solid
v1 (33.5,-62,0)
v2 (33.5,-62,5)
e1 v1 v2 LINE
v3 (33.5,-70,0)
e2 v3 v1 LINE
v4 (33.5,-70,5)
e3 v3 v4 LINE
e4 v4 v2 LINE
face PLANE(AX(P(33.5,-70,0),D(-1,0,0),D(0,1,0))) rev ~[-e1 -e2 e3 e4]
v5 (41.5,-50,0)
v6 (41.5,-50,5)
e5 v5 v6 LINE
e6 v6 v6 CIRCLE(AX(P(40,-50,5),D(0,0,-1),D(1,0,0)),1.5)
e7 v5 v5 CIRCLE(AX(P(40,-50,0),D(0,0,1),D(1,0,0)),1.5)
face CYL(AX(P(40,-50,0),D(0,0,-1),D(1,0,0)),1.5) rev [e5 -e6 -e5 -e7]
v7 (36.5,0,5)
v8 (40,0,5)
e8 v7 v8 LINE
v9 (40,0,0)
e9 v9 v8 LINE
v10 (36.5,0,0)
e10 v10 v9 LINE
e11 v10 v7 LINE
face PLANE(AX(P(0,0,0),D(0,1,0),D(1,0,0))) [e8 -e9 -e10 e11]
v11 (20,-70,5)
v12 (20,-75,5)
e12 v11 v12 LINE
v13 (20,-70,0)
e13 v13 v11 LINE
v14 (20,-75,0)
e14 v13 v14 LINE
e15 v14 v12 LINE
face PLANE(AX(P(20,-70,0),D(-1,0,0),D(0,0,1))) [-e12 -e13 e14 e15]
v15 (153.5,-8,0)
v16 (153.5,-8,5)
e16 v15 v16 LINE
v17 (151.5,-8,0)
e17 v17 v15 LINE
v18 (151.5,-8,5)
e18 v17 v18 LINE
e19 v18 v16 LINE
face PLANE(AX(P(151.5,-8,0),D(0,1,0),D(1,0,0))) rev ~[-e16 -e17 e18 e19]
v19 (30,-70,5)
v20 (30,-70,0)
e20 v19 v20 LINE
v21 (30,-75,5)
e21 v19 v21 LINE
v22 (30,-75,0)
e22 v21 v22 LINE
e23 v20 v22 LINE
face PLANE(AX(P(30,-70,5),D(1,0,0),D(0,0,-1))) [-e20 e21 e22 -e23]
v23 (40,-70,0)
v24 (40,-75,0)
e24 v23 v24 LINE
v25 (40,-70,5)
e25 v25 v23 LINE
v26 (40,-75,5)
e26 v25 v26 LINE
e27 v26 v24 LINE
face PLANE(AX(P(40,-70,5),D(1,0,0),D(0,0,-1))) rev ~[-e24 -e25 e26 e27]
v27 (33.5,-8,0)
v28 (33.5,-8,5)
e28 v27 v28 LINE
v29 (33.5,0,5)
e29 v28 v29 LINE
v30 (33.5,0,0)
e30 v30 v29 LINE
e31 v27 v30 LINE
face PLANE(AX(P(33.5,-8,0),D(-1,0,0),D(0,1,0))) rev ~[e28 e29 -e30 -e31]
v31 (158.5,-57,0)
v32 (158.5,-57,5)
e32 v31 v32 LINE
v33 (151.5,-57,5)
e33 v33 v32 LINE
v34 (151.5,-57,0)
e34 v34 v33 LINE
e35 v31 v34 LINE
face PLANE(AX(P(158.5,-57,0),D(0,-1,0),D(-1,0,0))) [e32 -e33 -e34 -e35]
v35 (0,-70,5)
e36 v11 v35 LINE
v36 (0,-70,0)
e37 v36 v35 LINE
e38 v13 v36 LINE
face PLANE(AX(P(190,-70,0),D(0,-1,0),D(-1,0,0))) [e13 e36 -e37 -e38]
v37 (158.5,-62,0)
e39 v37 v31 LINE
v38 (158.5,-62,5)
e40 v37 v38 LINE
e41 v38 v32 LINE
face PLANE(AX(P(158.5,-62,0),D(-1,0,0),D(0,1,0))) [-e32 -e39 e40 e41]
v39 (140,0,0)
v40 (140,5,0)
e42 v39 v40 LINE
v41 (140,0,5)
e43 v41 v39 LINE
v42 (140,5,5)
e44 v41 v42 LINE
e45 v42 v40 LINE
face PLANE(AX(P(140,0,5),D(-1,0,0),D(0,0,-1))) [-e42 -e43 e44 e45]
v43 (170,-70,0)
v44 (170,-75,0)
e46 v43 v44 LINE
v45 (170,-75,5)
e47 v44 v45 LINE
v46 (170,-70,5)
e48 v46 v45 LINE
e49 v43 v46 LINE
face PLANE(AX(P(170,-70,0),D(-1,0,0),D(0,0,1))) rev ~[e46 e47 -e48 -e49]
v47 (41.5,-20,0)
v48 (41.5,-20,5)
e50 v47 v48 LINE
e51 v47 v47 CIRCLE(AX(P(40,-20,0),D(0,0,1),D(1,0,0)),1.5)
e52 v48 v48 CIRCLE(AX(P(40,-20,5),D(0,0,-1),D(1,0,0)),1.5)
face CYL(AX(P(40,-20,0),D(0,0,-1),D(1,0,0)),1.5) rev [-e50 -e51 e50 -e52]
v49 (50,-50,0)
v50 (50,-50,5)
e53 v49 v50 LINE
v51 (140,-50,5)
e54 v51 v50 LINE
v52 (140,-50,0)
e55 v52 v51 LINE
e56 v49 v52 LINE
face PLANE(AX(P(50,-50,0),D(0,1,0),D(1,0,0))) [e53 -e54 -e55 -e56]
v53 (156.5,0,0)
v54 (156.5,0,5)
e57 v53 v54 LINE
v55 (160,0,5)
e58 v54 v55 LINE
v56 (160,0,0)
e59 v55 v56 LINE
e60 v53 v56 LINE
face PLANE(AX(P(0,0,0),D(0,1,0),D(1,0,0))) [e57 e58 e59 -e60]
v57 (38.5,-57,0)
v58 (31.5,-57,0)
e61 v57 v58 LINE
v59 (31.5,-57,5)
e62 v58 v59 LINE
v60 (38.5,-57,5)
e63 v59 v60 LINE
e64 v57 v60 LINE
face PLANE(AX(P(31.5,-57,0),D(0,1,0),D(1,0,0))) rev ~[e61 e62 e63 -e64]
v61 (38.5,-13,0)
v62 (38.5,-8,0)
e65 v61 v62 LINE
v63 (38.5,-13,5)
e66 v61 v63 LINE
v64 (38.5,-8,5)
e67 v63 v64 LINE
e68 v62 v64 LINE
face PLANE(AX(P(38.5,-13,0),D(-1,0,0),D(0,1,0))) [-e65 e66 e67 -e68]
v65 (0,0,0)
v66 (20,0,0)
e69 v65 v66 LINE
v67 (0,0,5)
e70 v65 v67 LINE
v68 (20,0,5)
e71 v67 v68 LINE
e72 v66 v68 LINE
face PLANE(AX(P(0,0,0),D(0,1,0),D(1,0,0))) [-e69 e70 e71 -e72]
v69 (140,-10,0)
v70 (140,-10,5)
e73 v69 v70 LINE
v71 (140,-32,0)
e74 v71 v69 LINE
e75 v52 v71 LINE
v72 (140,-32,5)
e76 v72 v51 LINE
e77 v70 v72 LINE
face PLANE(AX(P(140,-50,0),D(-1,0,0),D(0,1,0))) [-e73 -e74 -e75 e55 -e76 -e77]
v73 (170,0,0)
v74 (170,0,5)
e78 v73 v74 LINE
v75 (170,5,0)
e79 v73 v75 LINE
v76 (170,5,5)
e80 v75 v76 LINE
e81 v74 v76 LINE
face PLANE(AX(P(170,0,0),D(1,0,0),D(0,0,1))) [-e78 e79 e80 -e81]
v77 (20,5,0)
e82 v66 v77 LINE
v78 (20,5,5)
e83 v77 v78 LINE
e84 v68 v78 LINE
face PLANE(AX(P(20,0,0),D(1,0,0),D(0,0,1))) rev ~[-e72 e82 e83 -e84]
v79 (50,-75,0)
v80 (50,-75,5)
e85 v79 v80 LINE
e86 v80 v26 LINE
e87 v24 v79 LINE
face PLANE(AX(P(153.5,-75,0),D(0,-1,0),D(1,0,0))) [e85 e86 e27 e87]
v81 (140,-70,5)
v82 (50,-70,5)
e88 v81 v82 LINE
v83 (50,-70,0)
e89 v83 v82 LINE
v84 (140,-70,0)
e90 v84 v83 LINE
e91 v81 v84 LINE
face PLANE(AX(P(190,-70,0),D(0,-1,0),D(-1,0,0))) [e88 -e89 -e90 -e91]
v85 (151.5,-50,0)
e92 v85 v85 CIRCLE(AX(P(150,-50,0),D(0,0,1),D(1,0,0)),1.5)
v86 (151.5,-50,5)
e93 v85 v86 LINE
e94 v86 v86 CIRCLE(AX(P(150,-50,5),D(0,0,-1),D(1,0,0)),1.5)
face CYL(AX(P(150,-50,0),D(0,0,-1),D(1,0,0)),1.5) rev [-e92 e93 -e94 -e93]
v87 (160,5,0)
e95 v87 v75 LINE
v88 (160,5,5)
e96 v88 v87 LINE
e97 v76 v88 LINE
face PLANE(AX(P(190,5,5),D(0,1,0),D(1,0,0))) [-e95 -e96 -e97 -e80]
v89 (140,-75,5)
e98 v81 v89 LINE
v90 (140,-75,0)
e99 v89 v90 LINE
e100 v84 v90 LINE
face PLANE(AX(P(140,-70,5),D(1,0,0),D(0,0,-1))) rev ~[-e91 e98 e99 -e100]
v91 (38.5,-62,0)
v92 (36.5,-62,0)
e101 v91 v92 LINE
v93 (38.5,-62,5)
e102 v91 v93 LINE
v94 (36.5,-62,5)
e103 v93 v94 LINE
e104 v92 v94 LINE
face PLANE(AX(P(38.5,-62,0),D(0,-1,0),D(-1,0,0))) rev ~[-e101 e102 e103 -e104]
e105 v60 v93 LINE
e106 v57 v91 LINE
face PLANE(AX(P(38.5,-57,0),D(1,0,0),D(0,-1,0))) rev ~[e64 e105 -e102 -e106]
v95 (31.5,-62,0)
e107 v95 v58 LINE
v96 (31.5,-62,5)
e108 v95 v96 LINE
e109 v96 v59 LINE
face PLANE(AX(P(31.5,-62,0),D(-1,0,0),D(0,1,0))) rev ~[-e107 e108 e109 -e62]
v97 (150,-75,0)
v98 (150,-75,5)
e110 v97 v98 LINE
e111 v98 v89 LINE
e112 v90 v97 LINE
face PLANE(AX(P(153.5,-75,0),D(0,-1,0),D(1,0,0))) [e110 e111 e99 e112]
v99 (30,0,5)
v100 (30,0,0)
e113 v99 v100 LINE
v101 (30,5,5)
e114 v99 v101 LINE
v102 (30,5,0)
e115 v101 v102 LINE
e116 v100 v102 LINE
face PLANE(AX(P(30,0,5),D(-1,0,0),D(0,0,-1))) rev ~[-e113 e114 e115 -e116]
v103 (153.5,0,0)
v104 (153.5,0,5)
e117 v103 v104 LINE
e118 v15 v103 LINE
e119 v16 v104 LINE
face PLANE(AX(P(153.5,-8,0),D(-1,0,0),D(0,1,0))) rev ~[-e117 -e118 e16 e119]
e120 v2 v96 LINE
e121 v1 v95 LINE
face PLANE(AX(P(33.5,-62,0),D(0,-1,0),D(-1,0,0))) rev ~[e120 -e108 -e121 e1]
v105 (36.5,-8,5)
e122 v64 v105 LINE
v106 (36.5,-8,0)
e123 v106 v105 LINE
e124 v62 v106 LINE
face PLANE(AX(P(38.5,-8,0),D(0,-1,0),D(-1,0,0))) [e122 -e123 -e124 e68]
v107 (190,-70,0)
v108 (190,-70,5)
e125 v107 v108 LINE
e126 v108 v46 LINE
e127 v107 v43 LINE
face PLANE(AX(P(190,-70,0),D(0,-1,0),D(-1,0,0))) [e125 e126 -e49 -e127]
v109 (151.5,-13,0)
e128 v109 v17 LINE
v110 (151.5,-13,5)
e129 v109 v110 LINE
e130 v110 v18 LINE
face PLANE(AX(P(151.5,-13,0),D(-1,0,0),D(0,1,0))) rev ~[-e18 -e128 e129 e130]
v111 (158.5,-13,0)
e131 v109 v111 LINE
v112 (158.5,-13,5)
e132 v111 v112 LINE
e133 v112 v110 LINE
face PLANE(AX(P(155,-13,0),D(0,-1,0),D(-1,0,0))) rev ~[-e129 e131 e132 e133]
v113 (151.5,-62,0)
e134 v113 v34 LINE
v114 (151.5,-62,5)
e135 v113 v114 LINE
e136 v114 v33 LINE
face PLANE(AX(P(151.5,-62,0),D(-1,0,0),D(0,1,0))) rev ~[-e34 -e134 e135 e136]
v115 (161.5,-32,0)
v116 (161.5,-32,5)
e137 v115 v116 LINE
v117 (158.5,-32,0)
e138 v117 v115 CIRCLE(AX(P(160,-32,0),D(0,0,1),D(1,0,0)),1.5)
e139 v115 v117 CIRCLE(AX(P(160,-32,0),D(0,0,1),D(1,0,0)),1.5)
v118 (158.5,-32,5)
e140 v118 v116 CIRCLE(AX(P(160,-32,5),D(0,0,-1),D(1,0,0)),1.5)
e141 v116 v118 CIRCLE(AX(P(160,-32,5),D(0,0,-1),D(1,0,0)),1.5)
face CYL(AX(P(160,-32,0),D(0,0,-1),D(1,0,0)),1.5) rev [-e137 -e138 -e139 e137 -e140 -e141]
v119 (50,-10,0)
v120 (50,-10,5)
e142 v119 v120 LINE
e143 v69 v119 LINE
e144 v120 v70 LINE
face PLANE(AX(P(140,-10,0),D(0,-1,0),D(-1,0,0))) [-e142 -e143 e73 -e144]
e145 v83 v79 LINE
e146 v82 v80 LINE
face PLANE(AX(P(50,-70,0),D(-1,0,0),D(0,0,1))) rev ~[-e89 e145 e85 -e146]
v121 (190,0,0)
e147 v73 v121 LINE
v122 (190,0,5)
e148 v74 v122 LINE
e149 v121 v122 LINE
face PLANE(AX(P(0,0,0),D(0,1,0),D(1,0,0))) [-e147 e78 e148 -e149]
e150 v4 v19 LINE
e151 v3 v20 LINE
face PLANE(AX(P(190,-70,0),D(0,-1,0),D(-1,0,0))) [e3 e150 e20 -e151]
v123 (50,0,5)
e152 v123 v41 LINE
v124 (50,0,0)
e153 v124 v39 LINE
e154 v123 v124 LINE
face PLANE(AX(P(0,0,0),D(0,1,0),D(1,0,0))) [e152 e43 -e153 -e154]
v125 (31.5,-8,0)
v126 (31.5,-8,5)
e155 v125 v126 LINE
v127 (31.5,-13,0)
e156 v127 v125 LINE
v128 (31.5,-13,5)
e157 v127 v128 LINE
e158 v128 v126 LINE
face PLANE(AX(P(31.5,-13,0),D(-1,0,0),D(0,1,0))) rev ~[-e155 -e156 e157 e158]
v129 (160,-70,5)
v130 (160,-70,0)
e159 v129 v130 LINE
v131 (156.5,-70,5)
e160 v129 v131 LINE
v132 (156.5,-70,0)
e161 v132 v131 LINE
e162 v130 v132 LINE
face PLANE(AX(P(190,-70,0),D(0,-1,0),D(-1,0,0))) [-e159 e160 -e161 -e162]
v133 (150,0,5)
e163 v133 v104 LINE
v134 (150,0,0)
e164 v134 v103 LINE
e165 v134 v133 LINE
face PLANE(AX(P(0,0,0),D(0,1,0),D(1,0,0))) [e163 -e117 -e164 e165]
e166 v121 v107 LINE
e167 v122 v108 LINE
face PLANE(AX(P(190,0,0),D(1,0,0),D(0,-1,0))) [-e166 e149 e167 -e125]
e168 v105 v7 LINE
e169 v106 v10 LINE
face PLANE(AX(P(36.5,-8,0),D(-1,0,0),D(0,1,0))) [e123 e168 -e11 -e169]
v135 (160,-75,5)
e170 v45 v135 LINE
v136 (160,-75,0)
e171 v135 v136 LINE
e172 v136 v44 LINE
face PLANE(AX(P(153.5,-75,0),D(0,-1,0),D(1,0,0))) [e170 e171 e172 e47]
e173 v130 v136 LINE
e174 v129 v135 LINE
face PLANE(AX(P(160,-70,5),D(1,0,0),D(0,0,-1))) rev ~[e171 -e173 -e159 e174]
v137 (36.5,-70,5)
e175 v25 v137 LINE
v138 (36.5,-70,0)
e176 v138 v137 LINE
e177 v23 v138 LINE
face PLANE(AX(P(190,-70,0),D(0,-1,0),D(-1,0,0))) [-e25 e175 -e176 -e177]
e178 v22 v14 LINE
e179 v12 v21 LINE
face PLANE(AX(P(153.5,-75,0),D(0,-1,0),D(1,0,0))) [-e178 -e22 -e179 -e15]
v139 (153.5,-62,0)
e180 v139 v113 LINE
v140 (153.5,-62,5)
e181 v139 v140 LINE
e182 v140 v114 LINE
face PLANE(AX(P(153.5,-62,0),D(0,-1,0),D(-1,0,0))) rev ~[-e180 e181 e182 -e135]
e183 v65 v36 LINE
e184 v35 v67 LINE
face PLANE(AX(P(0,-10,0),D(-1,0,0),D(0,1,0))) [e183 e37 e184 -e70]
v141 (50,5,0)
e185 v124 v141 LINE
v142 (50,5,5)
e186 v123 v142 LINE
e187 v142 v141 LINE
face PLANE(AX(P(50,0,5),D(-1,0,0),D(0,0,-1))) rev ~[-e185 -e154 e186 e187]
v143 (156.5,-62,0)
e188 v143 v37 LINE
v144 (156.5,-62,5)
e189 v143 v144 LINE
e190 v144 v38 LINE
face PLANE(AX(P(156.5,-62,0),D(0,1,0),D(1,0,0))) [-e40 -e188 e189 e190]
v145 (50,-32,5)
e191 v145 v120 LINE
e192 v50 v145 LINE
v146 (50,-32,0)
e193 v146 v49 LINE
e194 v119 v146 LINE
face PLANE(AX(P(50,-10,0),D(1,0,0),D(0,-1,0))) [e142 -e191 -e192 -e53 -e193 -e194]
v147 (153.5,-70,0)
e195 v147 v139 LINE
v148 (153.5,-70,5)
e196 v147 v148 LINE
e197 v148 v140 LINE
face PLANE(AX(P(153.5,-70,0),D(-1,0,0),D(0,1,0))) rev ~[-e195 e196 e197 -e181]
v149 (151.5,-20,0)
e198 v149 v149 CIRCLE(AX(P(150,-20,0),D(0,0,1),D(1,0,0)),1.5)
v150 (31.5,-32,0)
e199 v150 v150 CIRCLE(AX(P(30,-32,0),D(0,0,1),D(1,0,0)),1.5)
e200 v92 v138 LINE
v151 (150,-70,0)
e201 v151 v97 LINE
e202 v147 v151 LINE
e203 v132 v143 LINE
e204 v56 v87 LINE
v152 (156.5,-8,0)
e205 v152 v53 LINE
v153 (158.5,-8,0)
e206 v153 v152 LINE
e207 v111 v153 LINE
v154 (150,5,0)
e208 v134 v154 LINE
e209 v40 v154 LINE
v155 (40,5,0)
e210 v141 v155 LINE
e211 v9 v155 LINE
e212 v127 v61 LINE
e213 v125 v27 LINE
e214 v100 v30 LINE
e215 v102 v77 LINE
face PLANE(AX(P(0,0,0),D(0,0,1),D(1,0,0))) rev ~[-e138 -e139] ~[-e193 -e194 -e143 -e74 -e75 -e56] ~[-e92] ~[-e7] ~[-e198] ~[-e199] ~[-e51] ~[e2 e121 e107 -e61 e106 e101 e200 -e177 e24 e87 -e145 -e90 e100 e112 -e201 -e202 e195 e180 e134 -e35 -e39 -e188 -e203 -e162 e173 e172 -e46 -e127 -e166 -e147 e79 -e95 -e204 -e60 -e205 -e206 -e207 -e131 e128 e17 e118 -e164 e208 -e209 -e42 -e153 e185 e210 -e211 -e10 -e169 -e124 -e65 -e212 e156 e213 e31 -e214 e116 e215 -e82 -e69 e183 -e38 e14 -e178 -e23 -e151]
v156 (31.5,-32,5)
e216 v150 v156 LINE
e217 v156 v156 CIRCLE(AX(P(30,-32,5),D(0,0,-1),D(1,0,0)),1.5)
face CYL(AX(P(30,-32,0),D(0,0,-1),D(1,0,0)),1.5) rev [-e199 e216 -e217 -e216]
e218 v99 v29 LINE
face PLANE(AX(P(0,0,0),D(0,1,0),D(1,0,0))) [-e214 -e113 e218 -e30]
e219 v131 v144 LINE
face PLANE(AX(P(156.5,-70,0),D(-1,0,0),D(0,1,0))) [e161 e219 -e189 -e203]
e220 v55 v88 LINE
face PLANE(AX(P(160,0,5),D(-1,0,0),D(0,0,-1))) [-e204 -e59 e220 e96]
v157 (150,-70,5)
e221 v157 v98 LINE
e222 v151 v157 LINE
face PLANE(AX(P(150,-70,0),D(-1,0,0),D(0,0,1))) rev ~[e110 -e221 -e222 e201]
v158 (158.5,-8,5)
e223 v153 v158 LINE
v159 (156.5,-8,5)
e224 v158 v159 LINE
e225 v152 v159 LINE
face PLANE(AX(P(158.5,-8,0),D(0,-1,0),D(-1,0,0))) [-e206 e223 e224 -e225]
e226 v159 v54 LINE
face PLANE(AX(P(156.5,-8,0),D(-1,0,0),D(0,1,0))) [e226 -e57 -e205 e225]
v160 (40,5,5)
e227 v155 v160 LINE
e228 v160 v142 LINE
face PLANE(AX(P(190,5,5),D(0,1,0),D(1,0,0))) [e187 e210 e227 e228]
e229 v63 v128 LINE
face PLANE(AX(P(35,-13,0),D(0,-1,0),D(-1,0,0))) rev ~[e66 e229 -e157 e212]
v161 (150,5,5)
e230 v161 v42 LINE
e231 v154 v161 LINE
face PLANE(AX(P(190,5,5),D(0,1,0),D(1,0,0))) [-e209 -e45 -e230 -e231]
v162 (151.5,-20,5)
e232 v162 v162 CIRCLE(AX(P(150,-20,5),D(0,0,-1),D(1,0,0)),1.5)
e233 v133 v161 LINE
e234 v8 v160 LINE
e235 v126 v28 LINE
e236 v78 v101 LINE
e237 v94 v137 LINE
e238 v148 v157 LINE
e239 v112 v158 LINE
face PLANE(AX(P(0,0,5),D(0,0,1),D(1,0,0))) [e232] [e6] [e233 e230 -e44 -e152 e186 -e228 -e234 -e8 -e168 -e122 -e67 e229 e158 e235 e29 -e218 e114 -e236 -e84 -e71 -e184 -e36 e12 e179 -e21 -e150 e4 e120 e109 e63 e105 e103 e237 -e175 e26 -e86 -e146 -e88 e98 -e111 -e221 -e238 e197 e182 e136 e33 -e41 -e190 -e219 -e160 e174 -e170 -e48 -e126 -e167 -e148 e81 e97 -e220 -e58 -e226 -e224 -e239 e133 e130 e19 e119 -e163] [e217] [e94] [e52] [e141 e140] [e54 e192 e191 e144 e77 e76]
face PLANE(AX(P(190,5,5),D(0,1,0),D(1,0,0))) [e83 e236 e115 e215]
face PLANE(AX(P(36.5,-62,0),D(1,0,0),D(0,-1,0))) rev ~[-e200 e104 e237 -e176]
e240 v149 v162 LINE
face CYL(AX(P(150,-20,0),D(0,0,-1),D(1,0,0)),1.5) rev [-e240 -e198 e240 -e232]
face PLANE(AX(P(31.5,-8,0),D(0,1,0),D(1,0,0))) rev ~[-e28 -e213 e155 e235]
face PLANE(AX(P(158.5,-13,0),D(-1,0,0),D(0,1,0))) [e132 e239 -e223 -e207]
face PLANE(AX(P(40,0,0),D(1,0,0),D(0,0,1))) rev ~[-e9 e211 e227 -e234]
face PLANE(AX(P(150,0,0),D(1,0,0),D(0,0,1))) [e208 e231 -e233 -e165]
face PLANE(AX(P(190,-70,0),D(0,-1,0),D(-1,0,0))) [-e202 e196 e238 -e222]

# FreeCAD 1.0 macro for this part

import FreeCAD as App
import Part
import Sketcher
Q = App.Units.Quantity


def add_polygon(sketch, points):
    """Adds a closed chain of lines whose ends are joined by coincident constraints."""
    first, n = sketch.GeometryCount, len(points)
    for a, b in zip(points, points[1:] + points[:1]):
        sketch.addGeometry(Part.LineSegment(App.Vector(*a, 0), App.Vector(*b, 0)), False)
    for i in range(n):
        sketch.addConstraint(Sketcher.Constraint("Coincident", first + i, 2, first + (i + 1) % n, 1))

doc = App.newDocument("Part")
params = doc.addObject("Spreadsheet::Sheet", "Params")
for row, (alias, value) in enumerate([
    ("sketch1_width", "190 mm"),
    ("sketch1_height", "70 mm"),
    ("pad1_length", "5 mm"),
    ("sketch2_width", "2 mm"),
    ("sketch2_height", "13 mm"),
    ("sketch2_height2", "8 mm"),
    ("sketch2_width2", "1.5 mm"),
    ("pocket1_length", "5 mm"),
    ("sketch3_width", "2 mm"),
    ("sketch3_height", "8 mm"),
    ("sketch3_height2", "13 mm"),
    ("sketch3_width2", "1.5 mm"),
    ("pocket2_length", "5 mm"),
    ("sketch4_width", "2 mm"),
    ("sketch4_height", "8 mm"),
    ("sketch4_height2", "13 mm"),
    ("sketch4_width2", "1.5 mm"),
    ("pocket3_length", "5 mm"),
    ("sketch5_width", "2 mm"),
    ("sketch5_height", "13 mm"),
    ("sketch5_height2", "8 mm"),
    ("sketch5_width2", "1.5 mm"),
    ("pocket4_length", "5 mm"),
    ("sketch6_width", "2 mm"),
    ("sketch6_height", "13 mm"),
    ("sketch6_height2", "5 mm"),
    ("sketch6_width2", "3.5 mm"),
    ("pocket5_length", "5 mm"),
    ("sketch7_width", "2 mm"),
    ("sketch7_height", "13 mm"),
    ("sketch7_height2", "8 mm"),
    ("sketch7_width2", "3.5 mm"),
    ("pocket6_length", "5 mm"),
    ("sketch8_width", "2 mm"),
    ("sketch8_height", "5 mm"),
    ("sketch8_height2", "8 mm"),
    ("pocket7_length", "5 mm"),
    ("sketch9_width", "10 mm"),
    ("sketch9_height", "5 mm"),
    ("pad2_length", "5 mm"),
    ("sketch10_width", "10 mm"),
    ("sketch10_height", "5 mm"),
    ("pad3_length", "5 mm"),
    ("sketch11_width", "90 mm"),
    ("sketch11_height", "40 mm"),
    ("pocket8_length", "10 mm"),
    ("sketch12_diameter", "3 mm"),
    ("pocket9_length", "10 mm"),
], start=1):
    params.set(f"A{row}", alias)
    params.set(f"B{row}", "=" + value)
    params.setAlias(f"B{row}", alias)

body = doc.addObject("PartDesign::Body", "Body")

# Sketch on XY plane
sketch1 = body.newObject("Sketcher::SketchObject", "Sketch")
sketch1.AttachmentSupport = (doc.getObject("XY_Plane"), [""])
sketch1.MapMode = "FlatFace"
add_polygon(sketch1, [(190, 0), (0, 0), (0, -70), (190, -70)])  # lines 0-3
sketch1.addConstraint(Sketcher.Constraint("Horizontal", 0))
sketch1.addConstraint(Sketcher.Constraint("Vertical", 1))
sketch1.addConstraint(Sketcher.Constraint("Horizontal", 2))
sketch1.addConstraint(Sketcher.Constraint("Vertical", 3))
sketch1.addConstraint(Sketcher.Constraint("Coincident", 0, 2, -1, 1))
sketch1.addConstraint(Sketcher.Constraint("DistanceX", 0, 2, 0, 1, Q("190 mm")))
sketch1.addConstraint(Sketcher.Constraint("DistanceY", 1, 2, 1, 1, Q("70 mm")))
sketch1.setExpression("Constraints[9]", "Params.sketch1_width")
sketch1.setExpression("Constraints[10]", "Params.sketch1_height")
pad1 = body.newObject("PartDesign::Pad", "Pad")
pad1.Profile = sketch1
pad1.setExpression("Length", "Params.pad1_length")

# Sketch on XY plane
sketch2 = body.newObject("Sketcher::SketchObject", "Sketch001")
sketch2.AttachmentSupport = (doc.getObject("XY_Plane"), [""])
sketch2.MapMode = "FlatFace"
add_polygon(sketch2, [(155, -13), (155, 0), (156.5, 0), (156.5, -8), (158.5, -8), (158.5, -13)])  # lines 0-5
sketch2.addConstraint(Sketcher.Constraint("Vertical", 0))
sketch2.addConstraint(Sketcher.Constraint("Horizontal", 1))
sketch2.addConstraint(Sketcher.Constraint("Vertical", 2))
sketch2.addConstraint(Sketcher.Constraint("Horizontal", 3))
sketch2.addConstraint(Sketcher.Constraint("Vertical", 4))
sketch2.addConstraint(Sketcher.Constraint("Horizontal", 5))
sketch2.addConstraint(Sketcher.Constraint("PointOnObject", 0, 2, -1))
sketch2.addConstraint(Sketcher.Constraint("DistanceX", 3, 1, 3, 2, Q("2 mm")))
sketch2.addConstraint(Sketcher.Constraint("DistanceY", 0, 1, 0, 2, Q("13 mm")))
sketch2.addConstraint(Sketcher.Constraint("DistanceY", 2, 2, 2, 1, Q("8 mm")))
sketch2.addConstraint(Sketcher.Constraint("DistanceX", 1, 1, 1, 2, Q("1.5 mm")))
sketch2.addConstraint(Sketcher.Constraint("DistanceX", -1, 1, 0, 2, Q("155 mm")))
sketch2.setExpression("Constraints[13]", "Params.sketch2_width")
sketch2.setExpression("Constraints[14]", "Params.sketch2_height")
sketch2.setExpression("Constraints[15]", "Params.sketch2_height2")
sketch2.setExpression("Constraints[16]", "Params.sketch2_width2")
pocket1 = body.newObject("PartDesign::Pocket", "Pocket")
pocket1.Profile = sketch2
pocket1.setExpression("Length", "Params.pocket1_length")
pocket1.Reversed = True

# Sketch on XY plane
sketch3 = body.newObject("Sketcher::SketchObject", "Sketch002")
sketch3.AttachmentSupport = (doc.getObject("XY_Plane"), [""])
sketch3.MapMode = "FlatFace"
add_polygon(sketch3, [(153.5, -8), (153.5, 0), (155, 0), (155, -13), (151.5, -13), (151.5, -8)])  # lines 0-5
sketch3.addConstraint(Sketcher.Constraint("Vertical", 0))
sketch3.addConstraint(Sketcher.Constraint("Horizontal", 1))
sketch3.addConstraint(Sketcher.Constraint("Vertical", 2))
sketch3.addConstraint(Sketcher.Constraint("Horizontal", 3))
sketch3.addConstraint(Sketcher.Constraint("Vertical", 4))
sketch3.addConstraint(Sketcher.Constraint("Horizontal", 5))
sketch3.addConstraint(Sketcher.Constraint("PointOnObject", 0, 2, -1))
sketch3.addConstraint(Sketcher.Constraint("DistanceX", 5, 1, 5, 2, Q("2 mm")))
sketch3.addConstraint(Sketcher.Constraint("DistanceY", 0, 1, 0, 2, Q("8 mm")))
sketch3.addConstraint(Sketcher.Constraint("DistanceY", 2, 2, 2, 1, Q("13 mm")))
sketch3.addConstraint(Sketcher.Constraint("DistanceX", 1, 1, 1, 2, Q("1.5 mm")))
sketch3.addConstraint(Sketcher.Constraint("DistanceX", -1, 1, 1, 2, Q("155 mm")))
sketch3.setExpression("Constraints[13]", "Params.sketch3_width")
sketch3.setExpression("Constraints[14]", "Params.sketch3_height")
sketch3.setExpression("Constraints[15]", "Params.sketch3_height2")
sketch3.setExpression("Constraints[16]", "Params.sketch3_width2")
pocket2 = body.newObject("PartDesign::Pocket", "Pocket001")
pocket2.Profile = sketch3
pocket2.setExpression("Length", "Params.pocket2_length")
pocket2.Reversed = True

# Sketch on XY plane
sketch4 = body.newObject("Sketcher::SketchObject", "Sketch003")
sketch4.AttachmentSupport = (doc.getObject("XY_Plane"), [""])
sketch4.MapMode = "FlatFace"
add_polygon(sketch4, [(33.5, -8), (33.5, 0), (35, 0), (35, -13), (31.5, -13), (31.5, -8)])  # lines 0-5
sketch4.addConstraint(Sketcher.Constraint("Vertical", 0))
sketch4.addConstraint(Sketcher.Constraint("Horizontal", 1))
sketch4.addConstraint(Sketcher.Constraint("Vertical", 2))
sketch4.addConstraint(Sketcher.Constraint("Horizontal", 3))
sketch4.addConstraint(Sketcher.Constraint("Vertical", 4))
sketch4.addConstraint(Sketcher.Constraint("Horizontal", 5))
sketch4.addConstraint(Sketcher.Constraint("PointOnObject", 0, 2, -1))
sketch4.addConstraint(Sketcher.Constraint("DistanceX", 5, 1, 5, 2, Q("2 mm")))
sketch4.addConstraint(Sketcher.Constraint("DistanceY", 0, 1, 0, 2, Q("8 mm")))
sketch4.addConstraint(Sketcher.Constraint("DistanceY", 2, 2, 2, 1, Q("13 mm")))
sketch4.addConstraint(Sketcher.Constraint("DistanceX", 1, 1, 1, 2, Q("1.5 mm")))
sketch4.addConstraint(Sketcher.Constraint("DistanceX", -1, 1, 1, 2, Q("35 mm")))
sketch4.setExpression("Constraints[13]", "Params.sketch4_width")
sketch4.setExpression("Constraints[14]", "Params.sketch4_height")
sketch4.setExpression("Constraints[15]", "Params.sketch4_height2")
sketch4.setExpression("Constraints[16]", "Params.sketch4_width2")
pocket3 = body.newObject("PartDesign::Pocket", "Pocket002")
pocket3.Profile = sketch4
pocket3.setExpression("Length", "Params.pocket3_length")
pocket3.Reversed = True

# Sketch on XY plane
sketch5 = body.newObject("Sketcher::SketchObject", "Sketch004")
sketch5.AttachmentSupport = (doc.getObject("XY_Plane"), [""])
sketch5.MapMode = "FlatFace"
add_polygon(sketch5, [(35, -13), (35, 0), (36.5, 0), (36.5, -8), (38.5, -8), (38.5, -13)])  # lines 0-5
sketch5.addConstraint(Sketcher.Constraint("Vertical", 0))
sketch5.addConstraint(Sketcher.Constraint("Horizontal", 1))
sketch5.addConstraint(Sketcher.Constraint("Vertical", 2))
sketch5.addConstraint(Sketcher.Constraint("Horizontal", 3))
sketch5.addConstraint(Sketcher.Constraint("Vertical", 4))
sketch5.addConstraint(Sketcher.Constraint("Horizontal", 5))
sketch5.addConstraint(Sketcher.Constraint("PointOnObject", 0, 2, -1))
sketch5.addConstraint(Sketcher.Constraint("DistanceX", 3, 1, 3, 2, Q("2 mm")))
sketch5.addConstraint(Sketcher.Constraint("DistanceY", 0, 1, 0, 2, Q("13 mm")))
sketch5.addConstraint(Sketcher.Constraint("DistanceY", 2, 2, 2, 1, Q("8 mm")))
sketch5.addConstraint(Sketcher.Constraint("DistanceX", 1, 1, 1, 2, Q("1.5 mm")))
sketch5.addConstraint(Sketcher.Constraint("DistanceX", -1, 1, 0, 2, Q("35 mm")))
sketch5.setExpression("Constraints[13]", "Params.sketch5_width")
sketch5.setExpression("Constraints[14]", "Params.sketch5_height")
sketch5.setExpression("Constraints[15]", "Params.sketch5_height2")
sketch5.setExpression("Constraints[16]", "Params.sketch5_width2")
pocket4 = body.newObject("PartDesign::Pocket", "Pocket003")
pocket4.Profile = sketch5
pocket4.setExpression("Length", "Params.pocket4_length")
pocket4.Reversed = True

# Sketch on XY plane
sketch6 = body.newObject("Sketcher::SketchObject", "Sketch005")
sketch6.AttachmentSupport = (doc.getObject("XY_Plane"), [""])
sketch6.MapMode = "FlatFace"
add_polygon(sketch6, [(155, -70), (155, -57), (158.5, -57), (158.5, -62), (156.5, -62), (156.5, -70)])  # lines 0-5
sketch6.addConstraint(Sketcher.Constraint("Vertical", 0))
sketch6.addConstraint(Sketcher.Constraint("Horizontal", 1))
sketch6.addConstraint(Sketcher.Constraint("Vertical", 2))
sketch6.addConstraint(Sketcher.Constraint("Horizontal", 3))
sketch6.addConstraint(Sketcher.Constraint("Vertical", 4))
sketch6.addConstraint(Sketcher.Constraint("Horizontal", 5))
sketch6.addConstraint(Sketcher.Constraint("DistanceX", 3, 2, 3, 1, Q("2 mm")))
sketch6.addConstraint(Sketcher.Constraint("DistanceY", 0, 1, 0, 2, Q("13 mm")))
sketch6.addConstraint(Sketcher.Constraint("DistanceY", 2, 2, 2, 1, Q("5 mm")))
sketch6.addConstraint(Sketcher.Constraint("DistanceX", 1, 1, 1, 2, Q("3.5 mm")))
sketch6.addConstraint(Sketcher.Constraint("DistanceX", -1, 1, 0, 2, Q("155 mm")))
sketch6.addConstraint(Sketcher.Constraint("DistanceY", 0, 2, -1, 1, Q("57 mm")))
sketch6.setExpression("Constraints[12]", "Params.sketch6_width")
sketch6.setExpression("Constraints[13]", "Params.sketch6_height")
sketch6.setExpression("Constraints[14]", "Params.sketch6_height2")
sketch6.setExpression("Constraints[15]", "Params.sketch6_width2")
pocket5 = body.newObject("PartDesign::Pocket", "Pocket004")
pocket5.Profile = sketch6
pocket5.setExpression("Length", "Params.pocket5_length")
pocket5.Reversed = True

# Sketch on XY plane
sketch7 = body.newObject("Sketcher::SketchObject", "Sketch006")
sketch7.AttachmentSupport = (doc.getObject("XY_Plane"), [""])
sketch7.MapMode = "FlatFace"
add_polygon(sketch7, [(151.5, -57), (155, -57), (155, -70), (153.5, -70), (153.5, -62), (151.5, -62)])  # lines 0-5
sketch7.addConstraint(Sketcher.Constraint("Horizontal", 0))
sketch7.addConstraint(Sketcher.Constraint("Vertical", 1))
sketch7.addConstraint(Sketcher.Constraint("Horizontal", 2))
sketch7.addConstraint(Sketcher.Constraint("Vertical", 3))
sketch7.addConstraint(Sketcher.Constraint("Horizontal", 4))
sketch7.addConstraint(Sketcher.Constraint("Vertical", 5))
sketch7.addConstraint(Sketcher.Constraint("DistanceX", 4, 2, 4, 1, Q("2 mm")))
sketch7.addConstraint(Sketcher.Constraint("DistanceY", 1, 2, 1, 1, Q("13 mm")))
sketch7.addConstraint(Sketcher.Constraint("DistanceY", 3, 1, 3, 2, Q("8 mm")))
sketch7.addConstraint(Sketcher.Constraint("DistanceX", 0, 1, 0, 2, Q("3.5 mm")))
sketch7.addConstraint(Sketcher.Constraint("DistanceX", -1, 1, 0, 2, Q("155 mm")))
sketch7.addConstraint(Sketcher.Constraint("DistanceY", 0, 2, -1, 1, Q("57 mm")))
sketch7.setExpression("Constraints[12]", "Params.sketch7_width")
sketch7.setExpression("Constraints[13]", "Params.sketch7_height")
sketch7.setExpression("Constraints[14]", "Params.sketch7_height2")
sketch7.setExpression("Constraints[15]", "Params.sketch7_width2")
pocket6 = body.newObject("PartDesign::Pocket", "Pocket005")
pocket6.Profile = sketch7
pocket6.setExpression("Length", "Params.pocket6_length")
pocket6.Reversed = True

# Sketch on XY plane
sketch8 = body.newObject("Sketcher::SketchObject", "Sketch007")
sketch8.AttachmentSupport = (doc.getObject("XY_Plane"), [""])
sketch8.MapMode = "FlatFace"
add_polygon(sketch8, [(31.5, -57), (38.5, -57), (38.5, -62), (36.5, -62), (36.5, -70), (33.5, -70), (33.5, -62), (31.5, -62)])  # lines 0-7
sketch8.addConstraint(Sketcher.Constraint("Horizontal", 0))
sketch8.addConstraint(Sketcher.Constraint("Vertical", 1))
sketch8.addConstraint(Sketcher.Constraint("Horizontal", 2))
sketch8.addConstraint(Sketcher.Constraint("Vertical", 3))
sketch8.addConstraint(Sketcher.Constraint("Horizontal", 4))
sketch8.addConstraint(Sketcher.Constraint("Vertical", 5))
sketch8.addConstraint(Sketcher.Constraint("Horizontal", 6))
sketch8.addConstraint(Sketcher.Constraint("Vertical", 7))
sketch8.addConstraint(Sketcher.Constraint("Horizontal", 2, 2, 5, 2))
sketch8.addConstraint(Sketcher.Constraint("Equal", 2, 6))
sketch8.addConstraint(Sketcher.Constraint("DistanceX", 2, 2, 2, 1, Q("2 mm")))
sketch8.addConstraint(Sketcher.Constraint("DistanceY", 1, 2, 1, 1, Q("5 mm")))
sketch8.addConstraint(Sketcher.Constraint("DistanceY", 3, 2, 3, 1, Q("8 mm")))
sketch8.addConstraint(Sketcher.Constraint("DistanceX", 4, 2, 1, 2, Q("5 mm")))
sketch8.addConstraint(Sketcher.Constraint("DistanceY", 0, 2, -1, 1, Q("57 mm")))
sketch8.addConstraint(Sketcher.Constraint("DistanceX", -1, 1, 0, 2, Q("38.5 mm")))
sketch8.setExpression("Constraints[18]", "Params.sketch8_width")
sketch8.setExpression("Constraints[19]", "Params.sketch8_height")
sketch8.setExpression("Constraints[20]", "Params.sketch8_height2")
pocket7 = body.newObject("PartDesign::Pocket", "Pocket006")
pocket7.Profile = sketch8
pocket7.setExpression("Length", "Params.pocket7_length")
pocket7.Reversed = True

# Sketch on XZ plane
sketch9 = body.newObject("Sketcher::SketchObject", "Sketch008")
sketch9.AttachmentSupport = (doc.getObject("XZ_Plane"), [""])
sketch9.MapMode = "FlatFace"
sketch9.AttachmentOffset = App.Placement(App.Vector(0, 0, 70), App.Rotation())
add_polygon(sketch9, [(160, 5), (160, 0), (170, 0), (170, 5)])  # lines 0-3
add_polygon(sketch9, [(140, 5), (140, 0), (150, 0), (150, 5)])  # lines 4-7
add_polygon(sketch9, [(20, 5), (20, 0), (30, 0), (30, 5)])  # lines 8-11
add_polygon(sketch9, [(40, 5), (40, 0), (50, 0), (50, 5)])  # lines 12-15
sketch9.addConstraint(Sketcher.Constraint("Vertical", 0))
sketch9.addConstraint(Sketcher.Constraint("Horizontal", 1))
sketch9.addConstraint(Sketcher.Constraint("Vertical", 2))
sketch9.addConstraint(Sketcher.Constraint("Horizontal", 3))
sketch9.addConstraint(Sketcher.Constraint("Vertical", 4))
sketch9.addConstraint(Sketcher.Constraint("Horizontal", 5))
sketch9.addConstraint(Sketcher.Constraint("Vertical", 6))
sketch9.addConstraint(Sketcher.Constraint("Horizontal", 7))
sketch9.addConstraint(Sketcher.Constraint("Vertical", 8))
sketch9.addConstraint(Sketcher.Constraint("Horizontal", 9))
sketch9.addConstraint(Sketcher.Constraint("Vertical", 10))
sketch9.addConstraint(Sketcher.Constraint("Horizontal", 11))
sketch9.addConstraint(Sketcher.Constraint("Vertical", 12))
sketch9.addConstraint(Sketcher.Constraint("Horizontal", 13))
sketch9.addConstraint(Sketcher.Constraint("Vertical", 14))
sketch9.addConstraint(Sketcher.Constraint("Horizontal", 15))
sketch9.addConstraint(Sketcher.Constraint("PointOnObject", 0, 2, -1))
sketch9.addConstraint(Sketcher.Constraint("PointOnObject", 4, 2, -1))
sketch9.addConstraint(Sketcher.Constraint("PointOnObject", 8, 2, -1))
sketch9.addConstraint(Sketcher.Constraint("PointOnObject", 12, 2, -1))
sketch9.addConstraint(Sketcher.Constraint("Horizontal", 3, 2, 6, 2))
sketch9.addConstraint(Sketcher.Constraint("Horizontal", 7, 2, 10, 2))
sketch9.addConstraint(Sketcher.Constraint("Horizontal", 11, 2, 14, 2))
sketch9.addConstraint(Sketcher.Constraint("Equal", 3, 5))
sketch9.addConstraint(Sketcher.Constraint("Equal", 7, 9))
sketch9.addConstraint(Sketcher.Constraint("Equal", 11, 13))
sketch9.addConstraint(Sketcher.Constraint("DistanceX", 1, 1, 1, 2, Q("10 mm")))
sketch9.addConstraint(Sketcher.Constraint("DistanceY", 0, 2, 0, 1, Q("5 mm")))
sketch9.addConstraint(Sketcher.Constraint("DistanceX", -1, 1, 8, 2, Q("20 mm")))
sketch9.addConstraint(Sketcher.Constraint("DistanceX", 4, 2, 0, 2, Q("20 mm")))
sketch9.addConstraint(Sketcher.Constraint("DistanceX", 9, 2, 12, 2, Q("10 mm")))
sketch9.addConstraint(Sketcher.Constraint("DistanceX", -1, 1, 0, 2, Q("160 mm")))
sketch9.setExpression("Constraints[42]", "Params.sketch9_width")
sketch9.setExpression("Constraints[43]", "Params.sketch9_height")
pad2 = body.newObject("PartDesign::Pad", "Pad001")
pad2.Profile = sketch9
pad2.setExpression("Length", "Params.pad2_length")

# Sketch on XZ plane
sketch10 = body.newObject("Sketcher::SketchObject", "Sketch009")
sketch10.AttachmentSupport = (doc.getObject("XZ_Plane"), [""])
sketch10.MapMode = "FlatFace"
add_polygon(sketch10, [(30, 0), (20, 0), (20, 5), (30, 5)])  # lines 0-3
add_polygon(sketch10, [(170, 0), (160, 0), (160, 5), (170, 5)])  # lines 4-7
add_polygon(sketch10, [(150, 0), (140, 0), (140, 5), (150, 5)])  # lines 8-11
add_polygon(sketch10, [(50, 0), (40, 0), (40, 5), (50, 5)])  # lines 12-15
sketch10.addConstraint(Sketcher.Constraint("Horizontal", 0))
sketch10.addConstraint(Sketcher.Constraint("Vertical", 1))
sketch10.addConstraint(Sketcher.Constraint("Horizontal", 2))
sketch10.addConstraint(Sketcher.Constraint("Vertical", 3))
sketch10.addConstraint(Sketcher.Constraint("Horizontal", 4))
sketch10.addConstraint(Sketcher.Constraint("Vertical", 5))
sketch10.addConstraint(Sketcher.Constraint("Horizontal", 6))
sketch10.addConstraint(Sketcher.Constraint("Vertical", 7))
sketch10.addConstraint(Sketcher.Constraint("Horizontal", 8))
sketch10.addConstraint(Sketcher.Constraint("Vertical", 9))
sketch10.addConstraint(Sketcher.Constraint("Horizontal", 10))
sketch10.addConstraint(Sketcher.Constraint("Vertical", 11))
sketch10.addConstraint(Sketcher.Constraint("Horizontal", 12))
sketch10.addConstraint(Sketcher.Constraint("Vertical", 13))
sketch10.addConstraint(Sketcher.Constraint("Horizontal", 14))
sketch10.addConstraint(Sketcher.Constraint("Vertical", 15))
sketch10.addConstraint(Sketcher.Constraint("PointOnObject", 0, 2, -1))
sketch10.addConstraint(Sketcher.Constraint("PointOnObject", 4, 2, -1))
sketch10.addConstraint(Sketcher.Constraint("PointOnObject", 8, 2, -1))
sketch10.addConstraint(Sketcher.Constraint("PointOnObject", 12, 2, -1))
sketch10.addConstraint(Sketcher.Constraint("Horizontal", 2, 2, 5, 2))
sketch10.addConstraint(Sketcher.Constraint("Horizontal", 6, 2, 9, 2))
sketch10.addConstraint(Sketcher.Constraint("Horizontal", 10, 2, 13, 2))
sketch10.addConstraint(Sketcher.Constraint("Equal", 2, 4))
sketch10.addConstraint(Sketcher.Constraint("Equal", 6, 8))
sketch10.addConstraint(Sketcher.Constraint("Equal", 10, 12))
sketch10.addConstraint(Sketcher.Constraint("DistanceX", 0, 2, 0, 1, Q("10 mm")))
sketch10.addConstraint(Sketcher.Constraint("DistanceY", 1, 1, 1, 2, Q("5 mm")))
sketch10.addConstraint(Sketcher.Constraint("DistanceX", -1, 1, 0, 2, Q("20 mm")))
sketch10.addConstraint(Sketcher.Constraint("DistanceX", 8, 2, 4, 2, Q("20 mm")))
sketch10.addConstraint(Sketcher.Constraint("DistanceX", 3, 2, 12, 2, Q("10 mm")))
sketch10.addConstraint(Sketcher.Constraint("DistanceX", -1, 1, 4, 2, Q("160 mm")))
sketch10.setExpression("Constraints[42]", "Params.sketch10_width")
sketch10.setExpression("Constraints[43]", "Params.sketch10_height")
pad3 = body.newObject("PartDesign::Pad", "Pad002")
pad3.Profile = sketch10
pad3.setExpression("Length", "Params.pad3_length")
pad3.Reversed = True

# Sketch on XY plane
sketch11 = body.newObject("Sketcher::SketchObject", "Sketch010")
sketch11.AttachmentSupport = (doc.getObject("XY_Plane"), [""])
sketch11.MapMode = "FlatFace"
add_polygon(sketch11, [(140, -10), (50, -10), (50, -50), (140, -50)])  # lines 0-3
sketch11.addConstraint(Sketcher.Constraint("Horizontal", 0))
sketch11.addConstraint(Sketcher.Constraint("Vertical", 1))
sketch11.addConstraint(Sketcher.Constraint("Horizontal", 2))
sketch11.addConstraint(Sketcher.Constraint("Vertical", 3))
sketch11.addConstraint(Sketcher.Constraint("DistanceX", 0, 2, 0, 1, Q("90 mm")))
sketch11.addConstraint(Sketcher.Constraint("DistanceY", 1, 2, 1, 1, Q("40 mm")))
sketch11.addConstraint(Sketcher.Constraint("DistanceX", -1, 1, 0, 2, Q("50 mm")))
sketch11.addConstraint(Sketcher.Constraint("DistanceY", 1, 2, -1, 1, Q("50 mm")))
sketch11.setExpression("Constraints[8]", "Params.sketch11_width")
sketch11.setExpression("Constraints[9]", "Params.sketch11_height")
pocket8 = body.newObject("PartDesign::Pocket", "Pocket007")
pocket8.Profile = sketch11
pocket8.setExpression("Length", "Params.pocket8_length")
pocket8.Reversed = True

# Sketch on XY plane
sketch12 = body.newObject("Sketcher::SketchObject", "Sketch011")
sketch12.AttachmentSupport = (doc.getObject("XY_Plane"), [""])
sketch12.MapMode = "FlatFace"
sketch12.addGeometry(Part.Circle(App.Vector(160, -32, 0), App.Vector(0, 0, 1), 1.5), False)
sketch12.addGeometry(Part.Circle(App.Vector(30, -32, 0), App.Vector(0, 0, 1), 1.5), False)
sketch12.addGeometry(Part.Circle(App.Vector(40, -20, 0), App.Vector(0, 0, 1), 1.5), False)
sketch12.addGeometry(Part.Circle(App.Vector(150, -20, 0), App.Vector(0, 0, 1), 1.5), False)
sketch12.addGeometry(Part.Circle(App.Vector(150, -50, 0), App.Vector(0, 0, 1), 1.5), False)
sketch12.addGeometry(Part.Circle(App.Vector(40, -50, 0), App.Vector(0, 0, 1), 1.5), False)
sketch12.addConstraint(Sketcher.Constraint("Equal", 0, 1))
sketch12.addConstraint(Sketcher.Constraint("Equal", 1, 2))
sketch12.addConstraint(Sketcher.Constraint("Equal", 2, 3))
sketch12.addConstraint(Sketcher.Constraint("Equal", 3, 4))
sketch12.addConstraint(Sketcher.Constraint("Equal", 4, 5))
sketch12.addConstraint(Sketcher.Constraint("Horizontal", 0, 3, 1, 3))
sketch12.addConstraint(Sketcher.Constraint("Horizontal", 2, 3, 3, 3))
sketch12.addConstraint(Sketcher.Constraint("Horizontal", 4, 3, 5, 3))
sketch12.addConstraint(Sketcher.Constraint("Vertical", 3, 3, 4, 3))
sketch12.addConstraint(Sketcher.Constraint("Vertical", 2, 3, 5, 3))
sketch12.addConstraint(Sketcher.Constraint("Diameter", 0, Q("3 mm")))
sketch12.addConstraint(Sketcher.Constraint("DistanceX", -1, 1, 2, 3, Q("40 mm")))
sketch12.addConstraint(Sketcher.Constraint("DistanceY", 2, 3, -1, 1, Q("20 mm")))
sketch12.addConstraint(Sketcher.Constraint("DistanceY", 4, 3, -1, 1, Q("50 mm")))
sketch12.addConstraint(Sketcher.Constraint("DistanceY", 4, 3, 0, 3, Q("18 mm")))
sketch12.addConstraint(Sketcher.Constraint("DistanceX", -1, 1, 0, 3, Q("160 mm")))
sketch12.addConstraint(Sketcher.Constraint("DistanceX", -1, 1, 1, 3, Q("30 mm")))
sketch12.addConstraint(Sketcher.Constraint("DistanceX", -1, 1, 3, 3, Q("150 mm")))
sketch12.setExpression("Constraints[10]", "Params.sketch12_diameter")
pocket9 = body.newObject("PartDesign::Pocket", "Pocket008")
pocket9.Profile = sketch12
pocket9.setExpression("Length", "Params.pocket9_length")
pocket9.Reversed = True

doc.recompute()
